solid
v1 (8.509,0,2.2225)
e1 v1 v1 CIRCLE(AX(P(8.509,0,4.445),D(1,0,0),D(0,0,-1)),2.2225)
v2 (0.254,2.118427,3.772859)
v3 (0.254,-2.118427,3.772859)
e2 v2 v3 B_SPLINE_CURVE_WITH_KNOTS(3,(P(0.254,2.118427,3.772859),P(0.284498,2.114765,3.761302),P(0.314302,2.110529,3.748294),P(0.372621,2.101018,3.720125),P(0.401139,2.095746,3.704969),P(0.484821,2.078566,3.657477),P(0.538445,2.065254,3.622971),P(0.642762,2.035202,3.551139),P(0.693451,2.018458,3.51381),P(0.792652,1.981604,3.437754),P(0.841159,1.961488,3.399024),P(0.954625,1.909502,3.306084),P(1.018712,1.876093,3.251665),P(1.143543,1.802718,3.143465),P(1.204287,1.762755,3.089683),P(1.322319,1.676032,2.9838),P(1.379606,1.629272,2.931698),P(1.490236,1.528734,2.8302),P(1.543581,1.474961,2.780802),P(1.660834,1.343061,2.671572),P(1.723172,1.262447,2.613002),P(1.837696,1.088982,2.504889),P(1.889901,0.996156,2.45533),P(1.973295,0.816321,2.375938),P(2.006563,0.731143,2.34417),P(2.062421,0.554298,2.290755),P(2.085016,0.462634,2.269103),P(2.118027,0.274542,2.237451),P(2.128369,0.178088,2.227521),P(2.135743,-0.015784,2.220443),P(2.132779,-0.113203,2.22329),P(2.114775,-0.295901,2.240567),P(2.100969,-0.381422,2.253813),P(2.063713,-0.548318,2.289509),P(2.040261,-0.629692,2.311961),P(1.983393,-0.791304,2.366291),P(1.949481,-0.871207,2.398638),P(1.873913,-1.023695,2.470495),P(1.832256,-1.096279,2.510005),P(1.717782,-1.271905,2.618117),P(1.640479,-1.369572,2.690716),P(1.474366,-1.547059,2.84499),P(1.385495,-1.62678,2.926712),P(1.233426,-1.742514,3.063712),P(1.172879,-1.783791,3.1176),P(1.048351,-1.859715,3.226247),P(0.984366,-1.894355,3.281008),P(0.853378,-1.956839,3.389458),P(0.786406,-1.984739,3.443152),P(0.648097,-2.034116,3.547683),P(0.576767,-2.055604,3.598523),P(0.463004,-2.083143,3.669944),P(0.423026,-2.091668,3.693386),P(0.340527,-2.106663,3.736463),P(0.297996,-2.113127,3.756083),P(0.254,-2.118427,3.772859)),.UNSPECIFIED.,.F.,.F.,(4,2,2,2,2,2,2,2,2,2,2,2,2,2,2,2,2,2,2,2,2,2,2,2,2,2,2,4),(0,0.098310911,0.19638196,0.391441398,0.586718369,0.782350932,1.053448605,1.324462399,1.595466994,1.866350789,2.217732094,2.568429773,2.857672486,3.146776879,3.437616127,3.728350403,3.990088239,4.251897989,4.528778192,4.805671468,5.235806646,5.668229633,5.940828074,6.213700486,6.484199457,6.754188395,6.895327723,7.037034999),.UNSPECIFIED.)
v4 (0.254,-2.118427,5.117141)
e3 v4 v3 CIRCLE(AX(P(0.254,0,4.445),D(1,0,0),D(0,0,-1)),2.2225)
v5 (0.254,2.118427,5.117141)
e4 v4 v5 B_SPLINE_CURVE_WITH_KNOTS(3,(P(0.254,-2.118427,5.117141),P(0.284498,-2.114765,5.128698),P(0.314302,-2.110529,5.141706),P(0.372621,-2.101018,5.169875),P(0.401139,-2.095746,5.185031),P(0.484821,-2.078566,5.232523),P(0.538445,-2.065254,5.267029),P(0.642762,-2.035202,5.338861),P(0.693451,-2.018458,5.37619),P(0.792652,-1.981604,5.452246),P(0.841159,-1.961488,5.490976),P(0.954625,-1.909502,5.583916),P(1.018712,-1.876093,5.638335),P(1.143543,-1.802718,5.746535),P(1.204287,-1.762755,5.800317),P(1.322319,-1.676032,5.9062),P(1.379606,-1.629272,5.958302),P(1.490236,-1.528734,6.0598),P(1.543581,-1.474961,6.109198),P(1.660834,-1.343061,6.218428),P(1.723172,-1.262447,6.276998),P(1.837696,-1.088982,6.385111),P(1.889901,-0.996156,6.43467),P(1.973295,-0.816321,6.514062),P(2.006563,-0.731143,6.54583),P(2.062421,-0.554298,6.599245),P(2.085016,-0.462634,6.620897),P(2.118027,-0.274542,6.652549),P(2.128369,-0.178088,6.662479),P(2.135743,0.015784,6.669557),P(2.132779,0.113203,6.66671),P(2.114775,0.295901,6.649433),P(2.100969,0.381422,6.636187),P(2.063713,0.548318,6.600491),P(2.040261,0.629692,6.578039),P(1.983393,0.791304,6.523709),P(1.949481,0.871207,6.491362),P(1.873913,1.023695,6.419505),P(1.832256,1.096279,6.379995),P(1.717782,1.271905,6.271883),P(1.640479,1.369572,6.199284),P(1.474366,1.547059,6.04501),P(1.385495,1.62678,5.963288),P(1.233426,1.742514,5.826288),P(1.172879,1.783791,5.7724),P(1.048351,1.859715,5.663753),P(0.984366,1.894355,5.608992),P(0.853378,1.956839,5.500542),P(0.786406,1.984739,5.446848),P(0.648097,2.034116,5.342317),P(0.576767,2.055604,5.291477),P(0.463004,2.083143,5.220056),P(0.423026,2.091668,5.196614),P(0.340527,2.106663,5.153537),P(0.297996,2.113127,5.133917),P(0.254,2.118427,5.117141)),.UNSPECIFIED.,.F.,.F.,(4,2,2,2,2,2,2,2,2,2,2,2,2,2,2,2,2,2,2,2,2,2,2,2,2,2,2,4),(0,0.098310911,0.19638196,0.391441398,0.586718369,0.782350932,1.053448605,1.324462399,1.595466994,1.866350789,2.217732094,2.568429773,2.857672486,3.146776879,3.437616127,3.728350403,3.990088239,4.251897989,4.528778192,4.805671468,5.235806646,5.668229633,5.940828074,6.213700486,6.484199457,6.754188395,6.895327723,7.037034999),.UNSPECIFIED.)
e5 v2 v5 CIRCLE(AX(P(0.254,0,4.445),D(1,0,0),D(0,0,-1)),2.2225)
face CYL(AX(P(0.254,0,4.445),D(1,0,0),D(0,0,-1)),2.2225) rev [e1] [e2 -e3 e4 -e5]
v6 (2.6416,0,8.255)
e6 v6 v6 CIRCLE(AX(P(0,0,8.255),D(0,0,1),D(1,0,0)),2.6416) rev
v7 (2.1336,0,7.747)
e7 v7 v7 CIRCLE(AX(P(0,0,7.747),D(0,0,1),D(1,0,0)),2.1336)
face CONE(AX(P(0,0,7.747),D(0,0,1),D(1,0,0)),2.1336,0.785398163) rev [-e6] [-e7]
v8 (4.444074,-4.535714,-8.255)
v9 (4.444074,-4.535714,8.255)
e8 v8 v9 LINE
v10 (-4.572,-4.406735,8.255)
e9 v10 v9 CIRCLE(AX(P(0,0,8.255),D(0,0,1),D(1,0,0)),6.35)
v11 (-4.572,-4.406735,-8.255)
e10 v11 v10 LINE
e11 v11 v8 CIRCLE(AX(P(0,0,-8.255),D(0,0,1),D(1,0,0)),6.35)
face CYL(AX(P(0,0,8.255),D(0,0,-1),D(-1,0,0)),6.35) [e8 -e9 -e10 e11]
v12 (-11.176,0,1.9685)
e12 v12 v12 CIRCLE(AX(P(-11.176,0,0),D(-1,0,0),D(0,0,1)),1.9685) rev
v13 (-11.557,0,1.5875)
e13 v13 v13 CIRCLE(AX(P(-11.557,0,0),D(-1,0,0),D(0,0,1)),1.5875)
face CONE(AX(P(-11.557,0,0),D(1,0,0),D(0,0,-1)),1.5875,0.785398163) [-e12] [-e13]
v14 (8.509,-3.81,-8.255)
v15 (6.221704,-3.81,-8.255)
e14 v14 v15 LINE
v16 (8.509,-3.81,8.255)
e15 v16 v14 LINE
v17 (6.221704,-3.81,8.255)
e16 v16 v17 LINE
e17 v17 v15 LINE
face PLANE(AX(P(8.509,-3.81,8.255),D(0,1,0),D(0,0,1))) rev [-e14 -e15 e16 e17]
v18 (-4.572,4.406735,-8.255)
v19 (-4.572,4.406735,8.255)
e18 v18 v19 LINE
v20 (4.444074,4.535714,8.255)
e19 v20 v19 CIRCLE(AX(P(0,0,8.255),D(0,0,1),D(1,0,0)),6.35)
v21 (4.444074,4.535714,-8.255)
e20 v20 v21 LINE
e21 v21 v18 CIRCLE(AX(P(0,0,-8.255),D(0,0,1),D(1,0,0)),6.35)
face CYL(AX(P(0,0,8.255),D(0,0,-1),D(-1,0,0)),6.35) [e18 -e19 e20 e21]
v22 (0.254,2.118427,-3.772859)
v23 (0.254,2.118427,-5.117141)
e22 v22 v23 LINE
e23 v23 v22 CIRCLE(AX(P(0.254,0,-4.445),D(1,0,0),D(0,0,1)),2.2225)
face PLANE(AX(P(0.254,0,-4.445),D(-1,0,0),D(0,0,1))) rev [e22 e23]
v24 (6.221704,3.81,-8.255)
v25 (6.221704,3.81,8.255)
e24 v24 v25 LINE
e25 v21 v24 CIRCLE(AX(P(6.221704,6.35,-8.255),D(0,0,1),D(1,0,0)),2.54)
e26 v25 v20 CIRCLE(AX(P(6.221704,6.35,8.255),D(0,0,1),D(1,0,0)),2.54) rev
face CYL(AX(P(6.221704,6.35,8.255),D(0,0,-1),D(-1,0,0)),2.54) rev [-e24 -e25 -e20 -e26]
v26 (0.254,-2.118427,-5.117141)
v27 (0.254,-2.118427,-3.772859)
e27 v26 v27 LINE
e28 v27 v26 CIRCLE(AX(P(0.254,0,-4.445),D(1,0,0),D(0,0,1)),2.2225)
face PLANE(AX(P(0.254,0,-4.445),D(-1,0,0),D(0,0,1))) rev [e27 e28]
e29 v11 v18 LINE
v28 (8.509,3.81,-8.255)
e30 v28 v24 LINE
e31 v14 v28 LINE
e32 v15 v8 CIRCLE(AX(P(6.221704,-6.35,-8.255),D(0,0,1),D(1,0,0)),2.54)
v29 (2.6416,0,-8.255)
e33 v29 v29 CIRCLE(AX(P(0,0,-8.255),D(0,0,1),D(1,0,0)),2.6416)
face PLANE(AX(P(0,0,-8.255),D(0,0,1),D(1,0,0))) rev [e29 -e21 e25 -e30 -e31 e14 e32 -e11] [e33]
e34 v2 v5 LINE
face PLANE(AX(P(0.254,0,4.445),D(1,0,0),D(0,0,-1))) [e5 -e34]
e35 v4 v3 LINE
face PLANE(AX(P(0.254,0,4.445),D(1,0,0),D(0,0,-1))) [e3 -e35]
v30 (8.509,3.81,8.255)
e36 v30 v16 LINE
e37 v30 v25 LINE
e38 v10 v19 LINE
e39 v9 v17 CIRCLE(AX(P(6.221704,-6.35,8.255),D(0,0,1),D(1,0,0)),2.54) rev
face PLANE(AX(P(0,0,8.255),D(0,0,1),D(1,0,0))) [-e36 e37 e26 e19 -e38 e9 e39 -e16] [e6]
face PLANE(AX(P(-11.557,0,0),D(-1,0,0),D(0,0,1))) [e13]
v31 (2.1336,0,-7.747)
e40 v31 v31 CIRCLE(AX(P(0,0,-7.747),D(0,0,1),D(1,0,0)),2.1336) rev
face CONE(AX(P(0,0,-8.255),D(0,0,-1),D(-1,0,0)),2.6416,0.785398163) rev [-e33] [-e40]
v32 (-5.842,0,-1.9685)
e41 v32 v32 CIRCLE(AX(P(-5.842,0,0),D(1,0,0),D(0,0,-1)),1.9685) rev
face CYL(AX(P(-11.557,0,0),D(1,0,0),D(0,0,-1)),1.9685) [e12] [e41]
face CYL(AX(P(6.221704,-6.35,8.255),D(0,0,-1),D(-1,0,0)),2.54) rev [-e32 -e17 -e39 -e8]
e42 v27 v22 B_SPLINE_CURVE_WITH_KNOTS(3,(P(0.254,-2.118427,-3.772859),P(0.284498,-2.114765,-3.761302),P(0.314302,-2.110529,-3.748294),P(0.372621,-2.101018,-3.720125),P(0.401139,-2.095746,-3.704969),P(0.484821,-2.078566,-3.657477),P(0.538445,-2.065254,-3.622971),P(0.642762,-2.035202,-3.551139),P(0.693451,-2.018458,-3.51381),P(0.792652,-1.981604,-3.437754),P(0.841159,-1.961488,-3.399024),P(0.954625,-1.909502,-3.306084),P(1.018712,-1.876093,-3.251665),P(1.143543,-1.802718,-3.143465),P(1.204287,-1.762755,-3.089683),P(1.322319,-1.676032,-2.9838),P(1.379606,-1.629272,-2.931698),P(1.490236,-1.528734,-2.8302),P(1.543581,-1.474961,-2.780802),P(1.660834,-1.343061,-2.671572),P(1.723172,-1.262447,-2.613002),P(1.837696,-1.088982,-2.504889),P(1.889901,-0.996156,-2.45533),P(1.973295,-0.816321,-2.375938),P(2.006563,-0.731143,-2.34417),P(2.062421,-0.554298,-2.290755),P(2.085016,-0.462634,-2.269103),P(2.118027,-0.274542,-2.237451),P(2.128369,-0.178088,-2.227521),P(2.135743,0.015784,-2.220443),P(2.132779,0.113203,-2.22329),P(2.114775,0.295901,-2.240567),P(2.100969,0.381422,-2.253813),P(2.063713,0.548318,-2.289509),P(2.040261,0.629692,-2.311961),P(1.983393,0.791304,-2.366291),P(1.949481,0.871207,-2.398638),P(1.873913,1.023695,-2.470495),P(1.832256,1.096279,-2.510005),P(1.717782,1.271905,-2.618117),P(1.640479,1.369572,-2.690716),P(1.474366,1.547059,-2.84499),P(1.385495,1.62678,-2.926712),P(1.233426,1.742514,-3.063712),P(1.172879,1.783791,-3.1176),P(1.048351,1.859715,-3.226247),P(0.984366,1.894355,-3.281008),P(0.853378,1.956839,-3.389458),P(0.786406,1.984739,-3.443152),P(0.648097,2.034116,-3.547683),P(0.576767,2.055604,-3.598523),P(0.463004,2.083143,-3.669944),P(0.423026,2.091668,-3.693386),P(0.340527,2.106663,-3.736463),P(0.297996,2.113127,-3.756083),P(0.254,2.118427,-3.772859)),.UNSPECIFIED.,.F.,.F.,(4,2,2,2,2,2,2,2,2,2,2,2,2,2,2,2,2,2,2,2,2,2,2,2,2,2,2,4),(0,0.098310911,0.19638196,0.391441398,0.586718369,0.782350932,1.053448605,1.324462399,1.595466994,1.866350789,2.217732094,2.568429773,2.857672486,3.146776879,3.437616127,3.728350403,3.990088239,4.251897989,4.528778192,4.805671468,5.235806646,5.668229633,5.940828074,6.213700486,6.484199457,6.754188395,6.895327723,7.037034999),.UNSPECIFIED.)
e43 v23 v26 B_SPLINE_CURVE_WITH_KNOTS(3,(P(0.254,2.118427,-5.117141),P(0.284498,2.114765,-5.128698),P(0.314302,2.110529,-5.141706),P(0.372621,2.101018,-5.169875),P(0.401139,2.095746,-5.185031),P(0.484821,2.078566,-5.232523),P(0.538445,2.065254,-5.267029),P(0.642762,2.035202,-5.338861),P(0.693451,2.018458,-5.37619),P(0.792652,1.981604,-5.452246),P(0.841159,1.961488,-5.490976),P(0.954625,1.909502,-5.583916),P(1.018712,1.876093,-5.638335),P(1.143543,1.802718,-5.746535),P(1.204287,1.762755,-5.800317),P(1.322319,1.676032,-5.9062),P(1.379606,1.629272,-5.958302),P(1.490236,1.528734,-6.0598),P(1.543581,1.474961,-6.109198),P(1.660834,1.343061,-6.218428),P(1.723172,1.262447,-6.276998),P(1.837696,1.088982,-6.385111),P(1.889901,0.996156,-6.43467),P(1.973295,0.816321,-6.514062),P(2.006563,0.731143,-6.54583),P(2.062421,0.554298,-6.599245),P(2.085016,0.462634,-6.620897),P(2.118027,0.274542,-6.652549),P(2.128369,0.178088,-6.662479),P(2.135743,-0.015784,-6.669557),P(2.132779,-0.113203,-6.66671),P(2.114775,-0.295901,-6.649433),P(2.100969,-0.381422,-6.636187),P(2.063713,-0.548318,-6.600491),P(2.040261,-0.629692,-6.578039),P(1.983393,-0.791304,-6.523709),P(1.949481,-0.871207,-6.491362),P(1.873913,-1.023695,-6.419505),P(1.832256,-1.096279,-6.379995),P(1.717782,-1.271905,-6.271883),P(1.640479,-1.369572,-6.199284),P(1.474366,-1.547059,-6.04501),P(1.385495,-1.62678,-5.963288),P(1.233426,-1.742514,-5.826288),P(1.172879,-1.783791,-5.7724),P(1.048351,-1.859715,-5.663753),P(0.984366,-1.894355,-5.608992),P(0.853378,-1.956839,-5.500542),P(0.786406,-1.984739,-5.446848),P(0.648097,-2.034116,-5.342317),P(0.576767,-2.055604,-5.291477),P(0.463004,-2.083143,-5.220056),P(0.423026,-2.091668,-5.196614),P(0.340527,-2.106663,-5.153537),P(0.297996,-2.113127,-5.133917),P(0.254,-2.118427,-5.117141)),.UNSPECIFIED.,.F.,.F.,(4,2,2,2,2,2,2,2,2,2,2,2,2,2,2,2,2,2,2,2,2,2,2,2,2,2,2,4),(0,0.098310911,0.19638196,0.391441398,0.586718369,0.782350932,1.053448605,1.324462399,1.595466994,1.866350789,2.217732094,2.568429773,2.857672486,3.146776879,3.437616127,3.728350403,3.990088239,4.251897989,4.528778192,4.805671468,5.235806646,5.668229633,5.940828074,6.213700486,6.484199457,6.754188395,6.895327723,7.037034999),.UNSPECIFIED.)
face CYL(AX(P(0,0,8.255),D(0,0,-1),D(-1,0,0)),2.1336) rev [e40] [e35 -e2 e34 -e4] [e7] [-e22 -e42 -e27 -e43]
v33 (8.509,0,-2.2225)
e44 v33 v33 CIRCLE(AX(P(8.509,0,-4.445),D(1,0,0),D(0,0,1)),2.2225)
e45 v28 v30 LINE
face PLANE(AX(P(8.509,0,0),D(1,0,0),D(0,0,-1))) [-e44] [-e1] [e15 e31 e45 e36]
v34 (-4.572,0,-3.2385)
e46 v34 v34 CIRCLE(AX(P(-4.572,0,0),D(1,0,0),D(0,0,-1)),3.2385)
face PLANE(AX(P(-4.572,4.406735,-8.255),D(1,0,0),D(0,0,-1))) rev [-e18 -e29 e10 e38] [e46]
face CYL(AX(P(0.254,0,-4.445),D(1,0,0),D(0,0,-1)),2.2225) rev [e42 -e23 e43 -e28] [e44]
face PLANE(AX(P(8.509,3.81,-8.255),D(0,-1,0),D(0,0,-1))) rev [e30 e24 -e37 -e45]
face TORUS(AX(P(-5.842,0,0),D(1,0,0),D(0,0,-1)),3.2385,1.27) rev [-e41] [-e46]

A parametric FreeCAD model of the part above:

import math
import FreeCAD as App
import Part
import Sketcher
from FreeCAD import Vector
Q = App.Units.Quantity


def edges_at(feature, points):
    """Names of the edges that pass closest to the given points."""
    edges = feature.Shape.Edges
    near = lambda p: min(range(len(edges)), key=lambda i: edges[i].distToShape(Part.Vertex(*p))[0])
    return sorted({f"Edge{near(p) + 1}" for p in points})


def add_polygon(sketch, points):
    """Adds a closed chain of lines whose ends are joined by coincident constraints."""
    first, n = sketch.GeometryCount, len(points)
    for a, b in zip(points, points[1:] + points[:1]):
        sketch.addGeometry(Part.LineSegment(App.Vector(*a, 0), App.Vector(*b, 0)), False)
    for i in range(n):
        sketch.addConstraint(Sketcher.Constraint("Coincident", first + i, 2, first + (i + 1) % n, 1))

doc = App.newDocument("Part")
body = doc.addObject("PartDesign::Body", "Body")

sketch1 = body.newObject("Sketcher::SketchObject", "Sketch")
sketch1.AttachmentSupport = (doc.getObject("XY_Plane"), [""])
sketch1.MapMode = "FlatFace"
sketch1.addGeometry([
    Part.Circle(Vector(0, 0, 0), Vector(0, 0, 1), 6.3),
    Part.Circle(Vector(0, 0, 0), Vector(0, 0, 1), 2.1),
], False)
sketch1.addConstraint([
    Sketcher.Constraint("Coincident", 0, 3, -1, 1),
    Sketcher.Constraint("Coincident", 1, 3, -1, 1),
    Sketcher.Constraint("Diameter", 0, Q("0.5 in")),
    Sketcher.Constraint("Diameter", 1, Q("0.168 in")),
])
pad1 = body.newObject("PartDesign::Pad", "Pad")
pad1.Profile = sketch1
pad1.Length = Q("0.65 in")
pad1.Midplane = True

sketch2 = body.newObject("Sketcher::SketchObject", "Sketch001")
sketch2.AttachmentSupport = (doc.getObject("XY_Plane"), [""])
sketch2.MapMode = "FlatFace"
sketch2.AttachmentOffset = App.Placement(Vector(0, 0, 0.325 * 25.4), App.Rotation())
sketch2.addGeometry([
    Part.LineSegment(Vector(-5, -4, 0), Vector(-5, 4, 0)),
    Part.ArcOfCircle(Part.Circle(Vector(0, 0, 0), Vector(0, 0, 1), 6), math.radians(136), math.radians(224)),
    Part.LineSegment(Vector(5, 4, 0), Vector(5, -4, 0)),
    Part.ArcOfCircle(Part.Circle(Vector(0, 0, 0), Vector(0, 0, 1), 6), math.radians(-37), math.radians(37)),
], False)
sketch2.addConstraint([
    Sketcher.Constraint("Coincident", 0, 1, 1, 2),
    Sketcher.Constraint("Coincident", 1, 1, 0, 2),
    Sketcher.Constraint("Coincident", 2, 1, 3, 2),
    Sketcher.Constraint("Coincident", 3, 1, 2, 2),
    Sketcher.Constraint("Vertical", 0),
    Sketcher.Constraint("Vertical", 2),
    Sketcher.Constraint("Coincident", 1, 3, -1, 1),
    Sketcher.Constraint("Coincident", 3, 3, -1, 1),
    Sketcher.Constraint("Equal", 1, 3),
    Sketcher.Constraint("Radius", 1, Q("0.25 in")),
    Sketcher.Constraint("DistanceY", 2, 2, 2, 1, Q("0.3 in")),
    Sketcher.Constraint("DistanceX", 0, 1, -1, 1, Q("0.18 in")),
])
pocket1 = body.newObject("PartDesign::Pocket", "Pocket")
pocket1.Profile = sketch2
pocket1.Type = "ThroughAll"

sketch3 = body.newObject("Sketcher::SketchObject", "Sketch002")
sketch3.AttachmentSupport = (doc.getObject("YZ_Plane"), [""])
sketch3.MapMode = "FlatFace"
sketch3.AttachmentOffset = App.Placement(Vector(0, 0, -0.18 * 25.4), App.Rotation())
sketch3.addGeometry(Part.Circle(Vector(0, 0, 0), Vector(0, 0, 1), 2), False)
sketch3.addConstraint([
    Sketcher.Constraint("Coincident", 0, 3, -1, 1),
    Sketcher.Constraint("Diameter", 0, Q("0.155 in")),
])
pad2 = body.newObject("PartDesign::Pad", "Pad001")
pad2.Profile = sketch3
pad2.Length = Q("0.275 in")
pad2.Reversed = True

sketch4 = body.newObject("Sketcher::SketchObject", "Sketch003")
sketch4.AttachmentSupport = (doc.getObject("YZ_Plane"), [""])
sketch4.MapMode = "FlatFace"
sketch4.AttachmentOffset = App.Placement(Vector(0, 0, 0.2 * 25.4), App.Rotation())
add_polygon(sketch4, [(4, 8), (-4, 8), (-4, -8), (4, -8)])
sketch4.addConstraint([
    Sketcher.Constraint("Horizontal", 0),
    Sketcher.Constraint("Vertical", 1),
    Sketcher.Constraint("Horizontal", 2),
    Sketcher.Constraint("Vertical", 3),
    Sketcher.Constraint("Symmetric", 0, 2, 2, 2, -1, 1),
    Sketcher.Constraint("DistanceX", 0, 2, 0, 1, Q("0.3 in")),
    Sketcher.Constraint("DistanceY", 1, 2, 1, 1, Q("0.65 in")),
])
pad3 = body.newObject("PartDesign::Pad", "Pad002")
pad3.Profile = sketch4
pad3.Length = Q("0.135 in")
doc.recompute()

fillet = body.newObject("PartDesign::Fillet", "Fillet")
fillet.Base = (pad3, edges_at(pad3, [(-4.572, 0, -1.968)]))
fillet.Radius = Q("0.05 in")
doc.recompute()

chamfer = body.newObject("PartDesign::Chamfer", "Chamfer")
chamfer.Base = (fillet, edges_at(fillet, [(-11.557, 0, -1.968)]))
chamfer.Size = Q("0.015 in")

sketch5 = body.newObject("Sketcher::SketchObject", "Sketch004")
sketch5.AttachmentSupport = (doc.getObject("YZ_Plane"), [""])
sketch5.MapMode = "FlatFace"
sketch5.AttachmentOffset = App.Placement(Vector(0, 0, 0.335 * 25.4), App.Rotation())
sketch5.addGeometry([
    Part.Circle(Vector(0, 4.4, 0), Vector(0, 0, 1), 2.2),
    Part.Circle(Vector(0, -4.4, 0), Vector(0, 0, 1), 2.2),
], False)
sketch5.addConstraint([
    Sketcher.Constraint("Equal", 0, 1),
    Sketcher.Constraint("Symmetric", 0, 3, 1, 3, -1, 1),
    Sketcher.Constraint("PointOnObject", 0, 3, -2),
    Sketcher.Constraint("Diameter", 0, Q("0.175 in")),
    Sketcher.Constraint("DistanceY", 1, 3, 0, 3, Q("0.35 in")),
])
pocket2 = body.newObject("PartDesign::Pocket", "Pocket001")
pocket2.Profile = sketch5
pocket2.Length = Q("0.325 in")
doc.recompute()

chamfer2 = body.newObject("PartDesign::Chamfer", "Chamfer001")
chamfer2.Base = (pocket2, edges_at(pocket2, [(-2.134, 0, -8.255), (-2.134, 0, 8.255)]))
chamfer2.Size = Q("0.02 in")
doc.recompute()

fillet2 = body.newObject("PartDesign::Fillet", "Fillet001")
fillet2.Base = (chamfer2, edges_at(chamfer2, [(5.08, 3.81, 0), (5.08, -3.81, 0)]))
fillet2.Radius = Q("0.1 in")

doc.recompute()
